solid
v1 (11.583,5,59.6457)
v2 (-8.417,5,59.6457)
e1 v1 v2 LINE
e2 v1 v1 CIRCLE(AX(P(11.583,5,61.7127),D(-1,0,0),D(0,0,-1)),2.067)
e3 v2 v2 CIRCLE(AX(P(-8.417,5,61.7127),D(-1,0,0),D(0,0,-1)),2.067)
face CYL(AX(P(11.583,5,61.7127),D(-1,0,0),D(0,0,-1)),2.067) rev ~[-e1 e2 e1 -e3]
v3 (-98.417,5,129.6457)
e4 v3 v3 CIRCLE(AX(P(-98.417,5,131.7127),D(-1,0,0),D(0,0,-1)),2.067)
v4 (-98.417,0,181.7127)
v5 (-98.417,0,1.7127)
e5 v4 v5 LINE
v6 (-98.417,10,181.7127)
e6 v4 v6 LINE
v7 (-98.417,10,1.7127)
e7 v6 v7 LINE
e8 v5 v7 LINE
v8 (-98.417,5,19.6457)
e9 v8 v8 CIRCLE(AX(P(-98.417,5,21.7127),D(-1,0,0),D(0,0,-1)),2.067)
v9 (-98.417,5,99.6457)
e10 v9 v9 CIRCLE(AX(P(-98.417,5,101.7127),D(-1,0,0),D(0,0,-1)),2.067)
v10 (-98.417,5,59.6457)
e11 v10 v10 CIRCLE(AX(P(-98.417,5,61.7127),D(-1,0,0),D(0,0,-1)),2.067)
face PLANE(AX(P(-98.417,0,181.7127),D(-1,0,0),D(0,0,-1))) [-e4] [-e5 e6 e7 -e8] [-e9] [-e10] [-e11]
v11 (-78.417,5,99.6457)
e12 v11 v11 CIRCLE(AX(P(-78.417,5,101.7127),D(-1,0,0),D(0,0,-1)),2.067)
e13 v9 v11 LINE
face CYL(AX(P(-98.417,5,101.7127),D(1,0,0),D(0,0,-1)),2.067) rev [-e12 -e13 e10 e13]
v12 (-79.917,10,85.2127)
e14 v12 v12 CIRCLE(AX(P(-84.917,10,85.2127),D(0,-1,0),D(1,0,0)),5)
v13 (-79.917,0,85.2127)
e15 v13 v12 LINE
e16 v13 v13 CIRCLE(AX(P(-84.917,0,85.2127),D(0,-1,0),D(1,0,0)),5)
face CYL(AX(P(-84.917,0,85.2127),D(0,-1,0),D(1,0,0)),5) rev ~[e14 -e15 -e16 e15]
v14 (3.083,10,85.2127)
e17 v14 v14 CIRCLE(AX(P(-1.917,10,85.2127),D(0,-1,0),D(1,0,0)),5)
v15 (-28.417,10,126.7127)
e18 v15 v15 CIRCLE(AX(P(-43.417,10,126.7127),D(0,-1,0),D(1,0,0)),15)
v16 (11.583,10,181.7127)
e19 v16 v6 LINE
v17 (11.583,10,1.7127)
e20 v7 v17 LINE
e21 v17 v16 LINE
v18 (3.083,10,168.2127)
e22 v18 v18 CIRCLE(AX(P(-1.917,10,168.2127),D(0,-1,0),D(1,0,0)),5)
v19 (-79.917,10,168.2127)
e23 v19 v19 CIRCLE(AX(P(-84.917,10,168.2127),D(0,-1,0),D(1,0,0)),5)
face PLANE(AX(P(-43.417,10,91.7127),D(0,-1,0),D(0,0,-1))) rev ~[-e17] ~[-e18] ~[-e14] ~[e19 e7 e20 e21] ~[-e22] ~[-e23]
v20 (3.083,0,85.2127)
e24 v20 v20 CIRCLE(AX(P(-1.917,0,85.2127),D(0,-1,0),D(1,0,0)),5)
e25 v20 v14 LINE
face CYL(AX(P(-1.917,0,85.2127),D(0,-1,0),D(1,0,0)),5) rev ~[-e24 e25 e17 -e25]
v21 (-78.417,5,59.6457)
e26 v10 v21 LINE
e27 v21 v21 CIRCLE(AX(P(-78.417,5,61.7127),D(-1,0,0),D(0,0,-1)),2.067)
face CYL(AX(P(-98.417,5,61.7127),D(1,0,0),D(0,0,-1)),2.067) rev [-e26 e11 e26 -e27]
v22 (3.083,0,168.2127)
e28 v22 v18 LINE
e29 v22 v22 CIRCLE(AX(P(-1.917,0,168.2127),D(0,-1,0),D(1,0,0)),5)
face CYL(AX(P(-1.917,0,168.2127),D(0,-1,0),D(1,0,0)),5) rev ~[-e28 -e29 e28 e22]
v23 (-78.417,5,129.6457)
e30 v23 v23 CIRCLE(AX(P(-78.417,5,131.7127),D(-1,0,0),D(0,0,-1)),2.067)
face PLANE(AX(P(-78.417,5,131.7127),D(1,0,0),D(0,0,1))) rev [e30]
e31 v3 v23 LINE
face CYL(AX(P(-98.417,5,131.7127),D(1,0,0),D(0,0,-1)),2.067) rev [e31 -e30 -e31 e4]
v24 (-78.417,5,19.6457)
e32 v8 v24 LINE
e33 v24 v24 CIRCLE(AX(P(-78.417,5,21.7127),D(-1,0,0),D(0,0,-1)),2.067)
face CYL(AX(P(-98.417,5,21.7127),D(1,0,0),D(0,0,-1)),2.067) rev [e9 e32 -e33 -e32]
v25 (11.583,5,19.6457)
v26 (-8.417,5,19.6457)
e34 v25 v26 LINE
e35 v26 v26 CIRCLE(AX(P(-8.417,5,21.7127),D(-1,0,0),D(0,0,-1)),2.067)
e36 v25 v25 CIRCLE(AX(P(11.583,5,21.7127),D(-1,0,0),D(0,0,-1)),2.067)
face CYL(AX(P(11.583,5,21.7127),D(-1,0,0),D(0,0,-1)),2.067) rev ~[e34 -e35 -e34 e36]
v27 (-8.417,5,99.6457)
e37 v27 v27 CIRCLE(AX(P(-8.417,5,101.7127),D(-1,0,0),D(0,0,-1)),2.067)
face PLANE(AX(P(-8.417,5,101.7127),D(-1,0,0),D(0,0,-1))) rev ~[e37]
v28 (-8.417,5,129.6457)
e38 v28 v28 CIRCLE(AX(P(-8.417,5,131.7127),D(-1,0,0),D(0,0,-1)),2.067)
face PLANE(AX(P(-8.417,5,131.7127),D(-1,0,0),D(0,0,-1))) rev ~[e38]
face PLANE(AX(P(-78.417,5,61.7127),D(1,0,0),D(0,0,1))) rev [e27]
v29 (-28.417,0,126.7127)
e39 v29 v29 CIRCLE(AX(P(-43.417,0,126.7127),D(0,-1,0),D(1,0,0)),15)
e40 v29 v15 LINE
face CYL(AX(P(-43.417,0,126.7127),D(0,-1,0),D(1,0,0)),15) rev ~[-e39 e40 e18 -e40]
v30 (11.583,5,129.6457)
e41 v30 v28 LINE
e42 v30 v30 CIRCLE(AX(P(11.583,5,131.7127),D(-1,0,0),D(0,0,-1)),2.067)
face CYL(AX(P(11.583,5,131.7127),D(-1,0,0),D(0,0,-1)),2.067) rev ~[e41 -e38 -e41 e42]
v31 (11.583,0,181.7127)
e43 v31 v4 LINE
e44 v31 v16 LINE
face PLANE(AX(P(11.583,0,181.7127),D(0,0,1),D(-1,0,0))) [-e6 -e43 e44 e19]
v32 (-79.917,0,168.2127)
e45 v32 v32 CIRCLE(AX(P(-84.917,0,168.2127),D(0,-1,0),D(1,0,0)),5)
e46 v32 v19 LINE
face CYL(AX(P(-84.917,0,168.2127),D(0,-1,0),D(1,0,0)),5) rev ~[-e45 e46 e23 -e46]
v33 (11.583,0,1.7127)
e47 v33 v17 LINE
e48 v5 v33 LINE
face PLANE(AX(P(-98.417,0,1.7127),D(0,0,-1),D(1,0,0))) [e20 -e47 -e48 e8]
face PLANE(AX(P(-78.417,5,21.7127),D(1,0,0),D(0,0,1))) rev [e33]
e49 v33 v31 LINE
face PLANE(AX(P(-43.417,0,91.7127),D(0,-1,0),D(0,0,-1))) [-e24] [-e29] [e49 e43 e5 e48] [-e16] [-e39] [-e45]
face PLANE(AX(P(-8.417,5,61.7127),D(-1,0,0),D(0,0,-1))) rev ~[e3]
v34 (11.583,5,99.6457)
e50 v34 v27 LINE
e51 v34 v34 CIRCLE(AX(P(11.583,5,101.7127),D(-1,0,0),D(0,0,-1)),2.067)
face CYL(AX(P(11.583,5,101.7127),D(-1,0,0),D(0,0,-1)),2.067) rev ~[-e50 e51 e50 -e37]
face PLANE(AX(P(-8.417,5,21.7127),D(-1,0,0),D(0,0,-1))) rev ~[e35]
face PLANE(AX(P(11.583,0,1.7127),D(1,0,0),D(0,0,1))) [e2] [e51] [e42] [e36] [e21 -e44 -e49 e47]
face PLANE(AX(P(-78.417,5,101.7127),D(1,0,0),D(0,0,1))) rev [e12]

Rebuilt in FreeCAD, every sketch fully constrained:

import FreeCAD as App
import Part
import Sketcher

V = App.Vector

doc = App.newDocument("Part")
params = doc.addObject("Spreadsheet::Sheet", "Params")
for row, (alias, value) in enumerate([
    ("sketch1_width", "110 mm"),
    ("sketch1_height", "180 mm"),
    ("pad1_length", "10 mm"),
    ("sketch2_diameter", "10 mm"),
    ("sketch2_diameter2", "30 mm"),
    ("hole_diameter", "4.134 mm"),
    ("hole_depth", "20 mm"),
    ("hole2_diameter", "4.134 mm"),
    ("hole2_depth", "20 mm"),
    ("hole3_diameter", "4.134 mm"),
    ("hole3_depth", "20 mm"),
    ("hole4_diameter", "4.134 mm"),
    ("hole4_depth", "20 mm"),
], start=1):
    params.set(f"A{row}", alias)
    params.set(f"B{row}", "=" + value)
    params.setAlias(f"B{row}", alias)

body = doc.addObject("PartDesign::Body", "Body")

sketch1 = body.newObject("Sketcher::SketchObject", "Sketch")
sketch1.AttachmentSupport = (doc.getObject("XZ_Plane"), [""])
sketch1.MapMode = "FlatFace"
sketch1.addGeometry([
    Part.LineSegment(V(-98.417, 181.7127, 0), V(-98.417, 1.7127, 0)),
    Part.LineSegment(V(-98.417, 1.7127, 0), V(11.583, 1.7127, 0)),
    Part.LineSegment(V(11.583, 1.7127, 0), V(11.583, 181.7127, 0)),
    Part.LineSegment(V(11.583, 181.7127, 0), V(-98.417, 181.7127, 0)),
], False)
sketch1.addConstraint([
    Sketcher.Constraint("Coincident", 0, 2, 1, 1),
    Sketcher.Constraint("Coincident", 1, 2, 2, 1),
    Sketcher.Constraint("Coincident", 2, 2, 3, 1),
    Sketcher.Constraint("Coincident", 3, 2, 0, 1),
    Sketcher.Constraint("Vertical", 0),
    Sketcher.Constraint("Horizontal", 1),
    Sketcher.Constraint("Vertical", 2),
    Sketcher.Constraint("Horizontal", 3),
    Sketcher.Constraint("DistanceX", 1, 1, 1, 2, 110.0),
    Sketcher.Constraint("DistanceY", 0, 2, 0, 1, 180.0),
    Sketcher.Constraint("DistanceX", 0, 2, -1, 1, 98.417),
    Sketcher.Constraint("DistanceY", -1, 1, 0, 2, 1.7127),
])
sketch1.setExpression("Constraints[8]", "Params.sketch1_width")
sketch1.setExpression("Constraints[9]", "Params.sketch1_height")
pad1 = body.newObject("PartDesign::Pad", "Pad")
pad1.Profile = sketch1
pad1.setExpression("Length", "Params.pad1_length")
pad1.Reversed = True

sketch2 = body.newObject("Sketcher::SketchObject", "Sketch001")
sketch2.AttachmentSupport = (doc.getObject("XZ_Plane"), [""])
sketch2.MapMode = "FlatFace"
sketch2.addGeometry([
    Part.Circle(V(-84.917, 168.2127, 0), V(0, 0, 1), 5),
    Part.Circle(V(-1.917, 168.2127, 0), V(0, 0, 1), 5),
    Part.Circle(V(-84.917, 85.2127, 0), V(0, 0, 1), 5),
    Part.Circle(V(-1.917, 85.2127, 0), V(0, 0, 1), 5),
    Part.Circle(V(-43.417, 126.7127, 0), V(0, 0, 1), 15),
], False)
sketch2.addConstraint([
    Sketcher.Constraint("Equal", 0, 1),
    Sketcher.Constraint("Equal", 1, 2),
    Sketcher.Constraint("Equal", 2, 3),
    Sketcher.Constraint("Horizontal", 0, 3, 1, 3),
    Sketcher.Constraint("Horizontal", 2, 3, 3, 3),
    Sketcher.Constraint("Vertical", 0, 3, 2, 3),
    Sketcher.Constraint("Vertical", 1, 3, 3, 3),
    Sketcher.Constraint("Diameter", 0, 10.0),
    Sketcher.Constraint("Diameter", 4, 30.0),
    Sketcher.Constraint("DistanceX", 0, 3, 1, 3, 83.0),
    Sketcher.Constraint("DistanceY", 2, 3, 0, 3, 83.0),
    Sketcher.Constraint("DistanceX", 2, 3, 4, 3, 41.5),
    Sketcher.Constraint("DistanceY", 2, 3, 4, 3, 41.5),
    Sketcher.Constraint("DistanceX", 0, 3, -1, 1, 84.917),
    Sketcher.Constraint("DistanceY", -1, 1, 0, 3, 168.2127),
])
sketch2.setExpression("Constraints[7]", "Params.sketch2_diameter")
sketch2.setExpression("Constraints[8]", "Params.sketch2_diameter2")
pocket1 = body.newObject("PartDesign::Pocket", "Pocket")
pocket1.Profile = sketch2
pocket1.Type = "ThroughAll"

sketch3 = body.newObject("Sketcher::SketchObject", "Sketch002")
sketch3.AttachmentSupport = (doc.getObject("YZ_Plane"), [""])
sketch3.MapMode = "FlatFace"
sketch3.AttachmentOffset = App.Placement(V(0, 0, 11.583), App.Rotation())
sketch3.addGeometry(Part.Circle(V(5, 61.7127, 0), V(0, 0, 1), 2.067), False)
sketch3.addConstraint([
    Sketcher.Constraint("Diameter", 0, 4.134),
    Sketcher.Constraint("DistanceX", -1, 1, 0, 3, 5.0),
    Sketcher.Constraint("DistanceY", -1, 1, 0, 3, 61.7127),
])
doc.recompute()
hole = body.newObject("PartDesign::Hole", "Hole")
hole.Profile = sketch3
hole.ThreadType = "None"
hole.setExpression("Diameter", "Params.hole_diameter")
hole.DepthType = "Dimension"
hole.setExpression("Depth", "Params.hole_depth")
hole.DrillPoint = "Flat"

sketch4 = body.newObject("Sketcher::SketchObject", "Sketch003")
sketch4.AttachmentSupport = (doc.getObject("YZ_Plane"), [""])
sketch4.MapMode = "FlatFace"
sketch4.AttachmentOffset = App.Placement(V(0, 0, 11.583), App.Rotation())
sketch4.addGeometry(Part.Circle(V(5, 101.7127, 0), V(0, 0, 1), 2.067), False)
sketch4.addConstraint([
    Sketcher.Constraint("Diameter", 0, 4.134),
    Sketcher.Constraint("DistanceX", -1, 1, 0, 3, 5.0),
    Sketcher.Constraint("DistanceY", -1, 1, 0, 3, 101.7127),
])
doc.recompute()
hole2 = body.newObject("PartDesign::Hole", "Hole001")
hole2.Profile = sketch4
hole2.ThreadType = "None"
hole2.setExpression("Diameter", "Params.hole2_diameter")
hole2.DepthType = "Dimension"
hole2.setExpression("Depth", "Params.hole2_depth")
hole2.DrillPoint = "Flat"

sketch5 = body.newObject("Sketcher::SketchObject", "Sketch004")
sketch5.AttachmentSupport = (doc.getObject("YZ_Plane"), [""])
sketch5.MapMode = "FlatFace"
sketch5.AttachmentOffset = App.Placement(V(0, 0, 11.583), App.Rotation())
sketch5.addGeometry(Part.Circle(V(5, 21.7127, 0), V(0, 0, 1), 2.067), False)
sketch5.addConstraint([
    Sketcher.Constraint("Diameter", 0, 4.134),
    Sketcher.Constraint("DistanceX", -1, 1, 0, 3, 5.0),
    Sketcher.Constraint("DistanceY", -1, 1, 0, 3, 21.7127),
])
doc.recompute()
hole3 = body.newObject("PartDesign::Hole", "Hole002")
hole3.Profile = sketch5
hole3.ThreadType = "None"
hole3.setExpression("Diameter", "Params.hole3_diameter")
hole3.DepthType = "Dimension"
hole3.setExpression("Depth", "Params.hole3_depth")
hole3.DrillPoint = "Flat"

sketch6 = body.newObject("Sketcher::SketchObject", "Sketch005")
sketch6.AttachmentSupport = (doc.getObject("YZ_Plane"), [""])
sketch6.MapMode = "FlatFace"
sketch6.AttachmentOffset = App.Placement(V(0, 0, 11.583), App.Rotation())
sketch6.addGeometry(Part.Circle(V(5, 131.7127, 0), V(0, 0, 1), 2.067), False)
sketch6.addConstraint([
    Sketcher.Constraint("Diameter", 0, 4.134),
    Sketcher.Constraint("DistanceX", -1, 1, 0, 3, 5.0),
    Sketcher.Constraint("DistanceY", -1, 1, 0, 3, 131.7127),
])
doc.recompute()
hole4 = body.newObject("PartDesign::Hole", "Hole003")
hole4.Profile = sketch6
hole4.ThreadType = "None"
hole4.setExpression("Diameter", "Params.hole4_diameter")
hole4.DepthType = "Dimension"
hole4.setExpression("Depth", "Params.hole4_depth")
hole4.DrillPoint = "Flat"
doc.recompute()

datumplane = body.newObject("PartDesign::Plane", "DatumPlane")
datumplane.AttachmentSupport = (doc.getObject("YZ_Plane"), [""])
datumplane.MapMode = "FlatFace"
datumplane.AttachmentOffset = App.Placement(V(0, 0, -43.417), App.Rotation())
mirrored = body.newObject("PartDesign::Mirrored", "Mirrored")
mirrored.Originals = [hole, hole2, hole3, hole4]
mirrored.MirrorPlane = (datumplane, [""])
body.Tip = mirrored

doc.recompute()
